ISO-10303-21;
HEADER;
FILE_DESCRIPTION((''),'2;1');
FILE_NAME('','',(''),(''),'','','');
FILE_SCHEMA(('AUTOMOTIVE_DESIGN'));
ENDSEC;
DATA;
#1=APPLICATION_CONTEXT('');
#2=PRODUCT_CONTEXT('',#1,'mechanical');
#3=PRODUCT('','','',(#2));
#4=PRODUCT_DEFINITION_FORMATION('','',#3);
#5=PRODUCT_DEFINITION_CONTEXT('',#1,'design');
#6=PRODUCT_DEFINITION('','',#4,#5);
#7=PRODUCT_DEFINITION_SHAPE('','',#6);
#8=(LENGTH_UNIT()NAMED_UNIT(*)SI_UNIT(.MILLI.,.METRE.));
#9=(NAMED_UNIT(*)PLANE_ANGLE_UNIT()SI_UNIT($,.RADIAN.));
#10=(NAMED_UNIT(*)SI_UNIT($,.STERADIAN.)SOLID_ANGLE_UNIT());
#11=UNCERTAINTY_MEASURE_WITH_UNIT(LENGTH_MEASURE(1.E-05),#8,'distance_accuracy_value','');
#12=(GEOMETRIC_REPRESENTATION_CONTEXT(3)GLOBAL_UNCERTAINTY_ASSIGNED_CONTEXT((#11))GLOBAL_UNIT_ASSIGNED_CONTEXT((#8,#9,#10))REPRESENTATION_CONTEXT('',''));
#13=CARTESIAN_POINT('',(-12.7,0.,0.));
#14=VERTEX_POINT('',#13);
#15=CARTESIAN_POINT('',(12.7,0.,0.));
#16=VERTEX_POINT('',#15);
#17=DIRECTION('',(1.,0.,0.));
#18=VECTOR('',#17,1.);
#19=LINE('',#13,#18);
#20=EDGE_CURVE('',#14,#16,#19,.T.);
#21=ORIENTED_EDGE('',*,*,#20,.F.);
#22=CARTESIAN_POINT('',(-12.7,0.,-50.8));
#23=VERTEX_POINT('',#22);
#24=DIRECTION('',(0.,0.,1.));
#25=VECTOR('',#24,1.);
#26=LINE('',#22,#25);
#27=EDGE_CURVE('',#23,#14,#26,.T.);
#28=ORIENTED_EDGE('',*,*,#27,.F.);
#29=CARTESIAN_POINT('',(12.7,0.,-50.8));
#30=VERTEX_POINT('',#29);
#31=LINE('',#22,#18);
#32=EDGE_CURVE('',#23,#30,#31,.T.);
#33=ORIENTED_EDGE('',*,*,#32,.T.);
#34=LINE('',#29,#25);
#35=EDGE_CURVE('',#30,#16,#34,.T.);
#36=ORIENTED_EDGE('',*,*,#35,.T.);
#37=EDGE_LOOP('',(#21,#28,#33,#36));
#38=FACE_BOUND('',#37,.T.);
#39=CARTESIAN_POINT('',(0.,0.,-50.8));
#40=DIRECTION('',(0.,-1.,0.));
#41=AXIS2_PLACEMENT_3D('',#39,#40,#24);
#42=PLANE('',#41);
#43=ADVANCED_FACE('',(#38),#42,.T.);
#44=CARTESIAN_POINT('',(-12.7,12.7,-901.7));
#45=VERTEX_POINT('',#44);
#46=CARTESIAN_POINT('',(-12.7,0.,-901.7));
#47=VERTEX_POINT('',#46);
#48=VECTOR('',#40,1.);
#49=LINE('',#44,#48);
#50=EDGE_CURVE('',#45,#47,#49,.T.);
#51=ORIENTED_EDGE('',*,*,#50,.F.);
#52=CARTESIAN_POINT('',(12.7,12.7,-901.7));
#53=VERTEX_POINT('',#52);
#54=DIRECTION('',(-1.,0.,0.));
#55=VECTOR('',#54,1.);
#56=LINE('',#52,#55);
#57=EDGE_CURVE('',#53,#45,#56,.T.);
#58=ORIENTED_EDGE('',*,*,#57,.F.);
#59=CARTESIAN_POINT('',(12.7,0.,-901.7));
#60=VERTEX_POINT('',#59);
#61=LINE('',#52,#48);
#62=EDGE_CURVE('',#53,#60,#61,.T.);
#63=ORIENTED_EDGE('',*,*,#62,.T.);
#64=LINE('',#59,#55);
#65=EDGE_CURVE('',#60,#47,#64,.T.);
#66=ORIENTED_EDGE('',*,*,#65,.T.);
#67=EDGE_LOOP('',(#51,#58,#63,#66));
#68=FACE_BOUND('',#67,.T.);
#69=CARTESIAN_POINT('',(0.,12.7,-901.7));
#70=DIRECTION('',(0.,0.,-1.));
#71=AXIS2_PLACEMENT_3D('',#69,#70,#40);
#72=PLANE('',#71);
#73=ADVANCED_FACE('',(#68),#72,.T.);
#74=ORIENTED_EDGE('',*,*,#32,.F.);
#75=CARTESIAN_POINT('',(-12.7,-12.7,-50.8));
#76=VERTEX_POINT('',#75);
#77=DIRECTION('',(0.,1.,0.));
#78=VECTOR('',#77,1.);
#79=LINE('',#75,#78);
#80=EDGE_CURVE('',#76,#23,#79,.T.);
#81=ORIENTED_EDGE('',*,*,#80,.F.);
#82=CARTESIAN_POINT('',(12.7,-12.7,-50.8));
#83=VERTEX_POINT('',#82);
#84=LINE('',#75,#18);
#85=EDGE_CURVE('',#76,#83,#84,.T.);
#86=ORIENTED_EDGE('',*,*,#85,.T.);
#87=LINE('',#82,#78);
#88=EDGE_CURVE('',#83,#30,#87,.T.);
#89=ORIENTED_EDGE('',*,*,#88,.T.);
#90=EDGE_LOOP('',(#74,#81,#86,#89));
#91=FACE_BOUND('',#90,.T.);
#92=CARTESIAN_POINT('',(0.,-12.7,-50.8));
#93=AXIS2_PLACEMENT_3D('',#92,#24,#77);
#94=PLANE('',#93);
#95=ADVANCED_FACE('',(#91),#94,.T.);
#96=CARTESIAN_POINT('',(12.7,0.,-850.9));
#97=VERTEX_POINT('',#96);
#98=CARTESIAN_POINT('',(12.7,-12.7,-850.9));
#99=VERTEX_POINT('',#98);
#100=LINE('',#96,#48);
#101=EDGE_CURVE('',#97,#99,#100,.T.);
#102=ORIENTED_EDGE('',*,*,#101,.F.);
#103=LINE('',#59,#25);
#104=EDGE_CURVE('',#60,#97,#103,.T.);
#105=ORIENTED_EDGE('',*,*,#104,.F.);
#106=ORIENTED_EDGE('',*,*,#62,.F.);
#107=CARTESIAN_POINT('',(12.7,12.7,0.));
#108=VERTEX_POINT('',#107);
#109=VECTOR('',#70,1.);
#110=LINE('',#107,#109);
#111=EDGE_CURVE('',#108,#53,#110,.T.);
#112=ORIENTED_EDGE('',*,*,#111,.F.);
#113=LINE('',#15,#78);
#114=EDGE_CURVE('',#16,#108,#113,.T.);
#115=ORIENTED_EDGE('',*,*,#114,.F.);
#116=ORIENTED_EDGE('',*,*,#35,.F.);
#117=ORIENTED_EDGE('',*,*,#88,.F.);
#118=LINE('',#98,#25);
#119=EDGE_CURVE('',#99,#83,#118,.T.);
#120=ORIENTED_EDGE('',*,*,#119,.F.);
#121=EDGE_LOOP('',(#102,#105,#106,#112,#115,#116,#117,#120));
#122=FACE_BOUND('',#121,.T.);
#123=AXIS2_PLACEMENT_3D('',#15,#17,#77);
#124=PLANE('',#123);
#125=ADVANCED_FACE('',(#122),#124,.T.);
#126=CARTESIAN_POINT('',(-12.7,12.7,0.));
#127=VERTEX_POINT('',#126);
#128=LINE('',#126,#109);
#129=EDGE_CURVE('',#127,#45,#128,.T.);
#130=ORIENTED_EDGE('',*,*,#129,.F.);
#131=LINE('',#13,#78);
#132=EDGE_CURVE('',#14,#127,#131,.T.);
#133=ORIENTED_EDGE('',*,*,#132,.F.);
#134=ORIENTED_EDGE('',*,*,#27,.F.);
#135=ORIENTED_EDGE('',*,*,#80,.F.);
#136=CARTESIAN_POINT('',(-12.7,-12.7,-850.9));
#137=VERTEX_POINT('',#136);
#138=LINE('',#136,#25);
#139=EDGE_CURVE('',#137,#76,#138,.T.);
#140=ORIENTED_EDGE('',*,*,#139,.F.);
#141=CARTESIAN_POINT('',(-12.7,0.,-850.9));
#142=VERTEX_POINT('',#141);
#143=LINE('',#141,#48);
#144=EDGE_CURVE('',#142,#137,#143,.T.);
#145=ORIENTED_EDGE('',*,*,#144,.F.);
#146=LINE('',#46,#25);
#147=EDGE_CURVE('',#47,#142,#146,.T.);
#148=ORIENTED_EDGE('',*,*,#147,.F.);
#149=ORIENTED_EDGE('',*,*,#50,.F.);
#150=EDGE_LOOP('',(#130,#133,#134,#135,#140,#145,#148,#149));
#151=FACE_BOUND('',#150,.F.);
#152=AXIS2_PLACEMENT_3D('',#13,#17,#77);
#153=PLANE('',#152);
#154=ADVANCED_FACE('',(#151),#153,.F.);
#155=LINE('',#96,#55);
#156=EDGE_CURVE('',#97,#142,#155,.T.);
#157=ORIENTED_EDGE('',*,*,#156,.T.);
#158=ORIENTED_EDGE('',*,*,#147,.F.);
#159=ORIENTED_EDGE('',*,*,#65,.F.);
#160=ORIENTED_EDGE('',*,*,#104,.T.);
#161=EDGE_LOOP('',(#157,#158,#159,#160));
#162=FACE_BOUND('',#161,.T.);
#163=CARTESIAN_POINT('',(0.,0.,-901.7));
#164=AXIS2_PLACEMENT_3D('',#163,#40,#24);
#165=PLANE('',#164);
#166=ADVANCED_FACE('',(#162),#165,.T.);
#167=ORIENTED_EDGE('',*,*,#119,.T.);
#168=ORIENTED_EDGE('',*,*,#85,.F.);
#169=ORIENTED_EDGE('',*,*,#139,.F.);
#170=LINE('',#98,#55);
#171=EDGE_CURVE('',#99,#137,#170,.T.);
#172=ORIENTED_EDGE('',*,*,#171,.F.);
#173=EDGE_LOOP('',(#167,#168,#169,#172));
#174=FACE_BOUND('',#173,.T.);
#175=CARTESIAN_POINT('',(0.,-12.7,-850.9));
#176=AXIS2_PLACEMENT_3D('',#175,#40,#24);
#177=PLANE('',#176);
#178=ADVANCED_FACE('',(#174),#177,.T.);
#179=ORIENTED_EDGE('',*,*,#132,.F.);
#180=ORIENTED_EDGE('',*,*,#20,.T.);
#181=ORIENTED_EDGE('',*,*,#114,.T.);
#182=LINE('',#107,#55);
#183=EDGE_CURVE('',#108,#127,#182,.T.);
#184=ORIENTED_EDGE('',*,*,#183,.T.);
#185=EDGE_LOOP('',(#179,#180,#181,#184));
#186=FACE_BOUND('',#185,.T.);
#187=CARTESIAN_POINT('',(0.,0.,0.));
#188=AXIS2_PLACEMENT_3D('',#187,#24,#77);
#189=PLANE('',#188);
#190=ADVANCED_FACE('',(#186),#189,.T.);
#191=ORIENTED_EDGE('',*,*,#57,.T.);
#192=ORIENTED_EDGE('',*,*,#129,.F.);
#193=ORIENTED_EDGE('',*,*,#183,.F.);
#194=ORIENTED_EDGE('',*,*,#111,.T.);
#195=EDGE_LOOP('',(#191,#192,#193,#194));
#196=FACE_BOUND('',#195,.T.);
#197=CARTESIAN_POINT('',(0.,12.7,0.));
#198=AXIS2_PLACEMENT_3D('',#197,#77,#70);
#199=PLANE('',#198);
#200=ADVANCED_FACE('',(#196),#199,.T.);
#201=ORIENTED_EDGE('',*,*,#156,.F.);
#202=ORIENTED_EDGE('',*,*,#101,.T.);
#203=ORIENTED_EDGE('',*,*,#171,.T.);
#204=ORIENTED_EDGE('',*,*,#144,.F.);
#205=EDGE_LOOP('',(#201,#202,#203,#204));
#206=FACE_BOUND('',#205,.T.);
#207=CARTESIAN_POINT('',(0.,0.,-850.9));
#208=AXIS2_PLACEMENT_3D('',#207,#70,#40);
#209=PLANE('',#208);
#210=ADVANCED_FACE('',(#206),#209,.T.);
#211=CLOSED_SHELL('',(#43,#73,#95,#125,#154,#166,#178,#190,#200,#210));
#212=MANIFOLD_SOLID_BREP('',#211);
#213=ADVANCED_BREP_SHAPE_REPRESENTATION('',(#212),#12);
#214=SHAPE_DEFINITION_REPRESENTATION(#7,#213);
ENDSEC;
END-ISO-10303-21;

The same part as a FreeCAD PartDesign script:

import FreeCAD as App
import Part
import Sketcher
Q = App.Units.Quantity


def add_polygon(sketch, points):
    """Adds a closed chain of lines whose ends are joined by coincident constraints."""
    first, n = sketch.GeometryCount, len(points)
    for a, b in zip(points, points[1:] + points[:1]):
        sketch.addGeometry(Part.LineSegment(App.Vector(*a, 0), App.Vector(*b, 0)), False)
    for i in range(n):
        sketch.addConstraint(Sketcher.Constraint("Coincident", first + i, 2, first + (i + 1) % n, 1))

doc = App.newDocument("Part")
body = doc.addObject("PartDesign::Body", "Body")

sketch1 = body.newObject("Sketcher::SketchObject", "Sketch")
sketch1.AttachmentSupport = (doc.getObject("YZ_Plane"), [""])
sketch1.MapMode = "FlatFace"
add_polygon(sketch1, [(12.7, 0), (0, 0), (0, -50.8), (-12.7, -50.8), (-12.7, -850.9), (0, -850.9), (0, -901.7), (12.7, -901.7)])
sketch1.addConstraint([
    Sketcher.Constraint("Horizontal", 0),
    Sketcher.Constraint("Vertical", 1),
    Sketcher.Constraint("Horizontal", 2),
    Sketcher.Constraint("Vertical", 3),
    Sketcher.Constraint("Horizontal", 4),
    Sketcher.Constraint("Vertical", 5),
    Sketcher.Constraint("Horizontal", 6),
    Sketcher.Constraint("Vertical", 7),
    Sketcher.Constraint("Coincident", 0, 2, -1, 1),
    Sketcher.Constraint("PointOnObject", 4, 2, -2),
    Sketcher.Constraint("Equal", 0, 2),
    Sketcher.Constraint("Equal", 1, 5),
    Sketcher.Constraint("DistanceY", 1, 2, 1, 1, Q("2 in")),
    Sketcher.Constraint("DistanceX", 0, 2, 0, 1, Q("0.5 in")),
    Sketcher.Constraint("DistanceY", 3, 2, 3, 1, Q("31.5 in")),
])
pad1 = body.newObject("PartDesign::Pad", "Pad")
pad1.Profile = sketch1
pad1.Length = Q("1 in")
pad1.Midplane = True

doc.recompute()
